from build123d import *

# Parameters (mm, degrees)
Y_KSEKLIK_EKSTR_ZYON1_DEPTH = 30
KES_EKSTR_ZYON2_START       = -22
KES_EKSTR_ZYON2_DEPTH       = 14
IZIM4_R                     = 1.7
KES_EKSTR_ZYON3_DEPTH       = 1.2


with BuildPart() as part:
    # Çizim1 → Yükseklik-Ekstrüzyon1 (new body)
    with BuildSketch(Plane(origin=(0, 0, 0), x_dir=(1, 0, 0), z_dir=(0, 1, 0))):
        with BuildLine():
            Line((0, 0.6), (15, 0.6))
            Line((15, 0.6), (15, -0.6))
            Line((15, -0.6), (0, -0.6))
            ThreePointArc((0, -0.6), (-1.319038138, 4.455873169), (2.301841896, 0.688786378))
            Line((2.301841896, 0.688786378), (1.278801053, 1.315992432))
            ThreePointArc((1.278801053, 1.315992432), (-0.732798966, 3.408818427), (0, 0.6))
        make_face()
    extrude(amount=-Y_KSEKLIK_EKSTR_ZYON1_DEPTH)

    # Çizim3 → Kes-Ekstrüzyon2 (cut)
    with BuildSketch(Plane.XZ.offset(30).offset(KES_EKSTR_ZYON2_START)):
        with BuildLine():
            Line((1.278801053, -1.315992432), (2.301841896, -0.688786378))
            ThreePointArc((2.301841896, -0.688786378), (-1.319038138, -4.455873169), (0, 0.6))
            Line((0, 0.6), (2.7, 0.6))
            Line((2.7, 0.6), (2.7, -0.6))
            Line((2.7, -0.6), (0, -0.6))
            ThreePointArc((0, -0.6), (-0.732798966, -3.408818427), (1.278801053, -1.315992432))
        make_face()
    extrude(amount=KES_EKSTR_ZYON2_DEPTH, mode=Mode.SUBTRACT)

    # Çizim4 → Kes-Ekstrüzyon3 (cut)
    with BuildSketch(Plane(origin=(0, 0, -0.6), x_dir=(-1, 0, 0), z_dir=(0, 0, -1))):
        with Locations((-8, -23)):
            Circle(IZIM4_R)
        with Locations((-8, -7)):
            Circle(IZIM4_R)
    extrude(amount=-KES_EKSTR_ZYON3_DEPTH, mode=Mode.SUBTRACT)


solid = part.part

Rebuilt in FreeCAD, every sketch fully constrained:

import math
import FreeCAD as App
import Part
import Sketcher

doc = App.newDocument("Part")
body = doc.addObject("PartDesign::Body", "Body")

# Sketch on XZ plane
sketch1 = body.newObject("Sketcher::SketchObject", "Sketch")
sketch1.AttachmentSupport = (doc.getObject("XZ_Plane"), [""])
sketch1.MapMode = "FlatFace"
sketch1.addGeometry([
    Part.LineSegment(App.Vector(15, -0.6, 0), App.Vector(0, -0.6, 0)),  # 0
    Part.ArcOfCircle(Part.Circle(App.Vector(0, -2.1, 0), App.Vector(0, 0, 1), 1.5), math.radians(90), math.radians(392)),  # 1
    Part.LineSegment(App.Vector(1.3, -1.3, 0), App.Vector(2.3, -0.7, 0)),  # 2
    Part.ArcOfCircle(Part.Circle(App.Vector(0, -2.1, 0), App.Vector(0, 0, 1), 2.7), math.radians(90), math.radians(392)),  # 3
    Part.LineSegment(App.Vector(0, 0.6, 0), App.Vector(15, 0.6, 0)),  # 4
    Part.LineSegment(App.Vector(15, 0.6, 0), App.Vector(15, -0.6, 0)),  # 5
], False)
sketch1.addConstraint([
    Sketcher.Constraint("Tangent", 0, 2, 1, 1),
    Sketcher.Constraint("Coincident", 1, 2, 2, 1),
    Sketcher.Constraint("Coincident", 2, 2, 3, 2),
    Sketcher.Constraint("Tangent", 3, 1, 4, 1),
    Sketcher.Constraint("Coincident", 4, 2, 5, 1),
    Sketcher.Constraint("Coincident", 5, 2, 0, 1),
    Sketcher.Constraint("Horizontal", 0),
    Sketcher.Constraint("Horizontal", 4),
    Sketcher.Constraint("Vertical", 5),
    Sketcher.Constraint("Coincident", 3, 3, 1, 3),
    Sketcher.Constraint("Symmetric", 0, 2, 3, 1, -1, 1),
    Sketcher.Constraint("Radius", 1, 1.5),
    Sketcher.Constraint("Radius", 3, 2.7),
    Sketcher.Constraint("DistanceX", 0, 2, 0, 1, 15.0),
    Sketcher.Constraint("DistanceX", -1, 1, 1, 2, 1.278801),
    Sketcher.Constraint("DistanceX", -1, 1, 2, 2, 2.301842),
])
pad1 = body.newObject("PartDesign::Pad", "Pad")
pad1.Profile = sketch1
pad1.Length = 30

# Sketch on XZ plane
sketch2 = body.newObject("Sketcher::SketchObject", "Sketch001")
sketch2.AttachmentSupport = (doc.getObject("XZ_Plane"), [""])
sketch2.MapMode = "FlatFace"
sketch2.AttachmentOffset = App.Placement(App.Vector(0, 0, 8), App.Rotation())
sketch2.addGeometry([
    Part.LineSegment(App.Vector(2.3, -0.7, 0), App.Vector(1.3, -1.3, 0)),  # 0
    Part.ArcOfCircle(Part.Circle(App.Vector(0, -2.1, 0), App.Vector(0, 0, 1), 1.5), math.radians(90), math.radians(392)),  # 1
    Part.LineSegment(App.Vector(0, -0.6, 0), App.Vector(2.7, -0.6, 0)),  # 2
    Part.LineSegment(App.Vector(2.7, -0.6, 0), App.Vector(2.7, 0.6, 0)),  # 3
    Part.LineSegment(App.Vector(2.7, 0.6, 0), App.Vector(0, 0.6, 0)),  # 4
    Part.ArcOfCircle(Part.Circle(App.Vector(0, -2.1, 0), App.Vector(0, 0, 1), 2.7), math.radians(90), math.radians(392)),  # 5
], False)
sketch2.addConstraint([
    Sketcher.Constraint("Coincident", 0, 2, 1, 2),
    Sketcher.Constraint("Tangent", 1, 1, 2, 1),
    Sketcher.Constraint("Coincident", 2, 2, 3, 1),
    Sketcher.Constraint("Coincident", 3, 2, 4, 1),
    Sketcher.Constraint("Tangent", 4, 2, 5, 1),
    Sketcher.Constraint("Coincident", 5, 2, 0, 1),
    Sketcher.Constraint("Horizontal", 2),
    Sketcher.Constraint("Vertical", 3),
    Sketcher.Constraint("Horizontal", 4),
    Sketcher.Constraint("Coincident", 5, 3, 1, 3),
    Sketcher.Constraint("Symmetric", 1, 1, 4, 2, -1, 1),
    Sketcher.Constraint("Radius", 1, 1.5),
    Sketcher.Constraint("Radius", 5, 2.7),
    Sketcher.Constraint("DistanceX", 2, 1, 2, 2, 2.7),
    Sketcher.Constraint("DistanceX", -1, 1, 0, 2, 1.278801),
    Sketcher.Constraint("DistanceX", -1, 1, 5, 2, 2.301842),
])
pocket1 = body.newObject("PartDesign::Pocket", "Pocket")
pocket1.Profile = sketch2
pocket1.Length = 14
pocket1.Reversed = True

# Sketch on XY plane
sketch3 = body.newObject("Sketcher::SketchObject", "Sketch002")
sketch3.AttachmentSupport = (doc.getObject("XY_Plane"), [""])
sketch3.MapMode = "FlatFace"
sketch3.AttachmentOffset = App.Placement(App.Vector(0, 0, -0.6), App.Rotation())
sketch3.addGeometry([
    Part.Circle(App.Vector(8, -23, 0), App.Vector(0, 0, 1), 1.7),
    Part.Circle(App.Vector(8, -7, 0), App.Vector(0, 0, 1), 1.7),
], False)
sketch3.addConstraint([
    Sketcher.Constraint("Equal", 0, 1),
    Sketcher.Constraint("Vertical", 0, 3, 1, 3),
    Sketcher.Constraint("Diameter", 0, 3.4),
    Sketcher.Constraint("DistanceX", -1, 1, 0, 3, 8.0),
    Sketcher.Constraint("DistanceY", 0, 3, -1, 1, 23.0),
    Sketcher.Constraint("DistanceY", 1, 3, -1, 1, 7.0),
])
pocket2 = body.newObject("PartDesign::Pocket", "Pocket001")
pocket2.Profile = sketch3
pocket2.Length = 1.2
pocket2.Reversed = True

doc.recompute()
